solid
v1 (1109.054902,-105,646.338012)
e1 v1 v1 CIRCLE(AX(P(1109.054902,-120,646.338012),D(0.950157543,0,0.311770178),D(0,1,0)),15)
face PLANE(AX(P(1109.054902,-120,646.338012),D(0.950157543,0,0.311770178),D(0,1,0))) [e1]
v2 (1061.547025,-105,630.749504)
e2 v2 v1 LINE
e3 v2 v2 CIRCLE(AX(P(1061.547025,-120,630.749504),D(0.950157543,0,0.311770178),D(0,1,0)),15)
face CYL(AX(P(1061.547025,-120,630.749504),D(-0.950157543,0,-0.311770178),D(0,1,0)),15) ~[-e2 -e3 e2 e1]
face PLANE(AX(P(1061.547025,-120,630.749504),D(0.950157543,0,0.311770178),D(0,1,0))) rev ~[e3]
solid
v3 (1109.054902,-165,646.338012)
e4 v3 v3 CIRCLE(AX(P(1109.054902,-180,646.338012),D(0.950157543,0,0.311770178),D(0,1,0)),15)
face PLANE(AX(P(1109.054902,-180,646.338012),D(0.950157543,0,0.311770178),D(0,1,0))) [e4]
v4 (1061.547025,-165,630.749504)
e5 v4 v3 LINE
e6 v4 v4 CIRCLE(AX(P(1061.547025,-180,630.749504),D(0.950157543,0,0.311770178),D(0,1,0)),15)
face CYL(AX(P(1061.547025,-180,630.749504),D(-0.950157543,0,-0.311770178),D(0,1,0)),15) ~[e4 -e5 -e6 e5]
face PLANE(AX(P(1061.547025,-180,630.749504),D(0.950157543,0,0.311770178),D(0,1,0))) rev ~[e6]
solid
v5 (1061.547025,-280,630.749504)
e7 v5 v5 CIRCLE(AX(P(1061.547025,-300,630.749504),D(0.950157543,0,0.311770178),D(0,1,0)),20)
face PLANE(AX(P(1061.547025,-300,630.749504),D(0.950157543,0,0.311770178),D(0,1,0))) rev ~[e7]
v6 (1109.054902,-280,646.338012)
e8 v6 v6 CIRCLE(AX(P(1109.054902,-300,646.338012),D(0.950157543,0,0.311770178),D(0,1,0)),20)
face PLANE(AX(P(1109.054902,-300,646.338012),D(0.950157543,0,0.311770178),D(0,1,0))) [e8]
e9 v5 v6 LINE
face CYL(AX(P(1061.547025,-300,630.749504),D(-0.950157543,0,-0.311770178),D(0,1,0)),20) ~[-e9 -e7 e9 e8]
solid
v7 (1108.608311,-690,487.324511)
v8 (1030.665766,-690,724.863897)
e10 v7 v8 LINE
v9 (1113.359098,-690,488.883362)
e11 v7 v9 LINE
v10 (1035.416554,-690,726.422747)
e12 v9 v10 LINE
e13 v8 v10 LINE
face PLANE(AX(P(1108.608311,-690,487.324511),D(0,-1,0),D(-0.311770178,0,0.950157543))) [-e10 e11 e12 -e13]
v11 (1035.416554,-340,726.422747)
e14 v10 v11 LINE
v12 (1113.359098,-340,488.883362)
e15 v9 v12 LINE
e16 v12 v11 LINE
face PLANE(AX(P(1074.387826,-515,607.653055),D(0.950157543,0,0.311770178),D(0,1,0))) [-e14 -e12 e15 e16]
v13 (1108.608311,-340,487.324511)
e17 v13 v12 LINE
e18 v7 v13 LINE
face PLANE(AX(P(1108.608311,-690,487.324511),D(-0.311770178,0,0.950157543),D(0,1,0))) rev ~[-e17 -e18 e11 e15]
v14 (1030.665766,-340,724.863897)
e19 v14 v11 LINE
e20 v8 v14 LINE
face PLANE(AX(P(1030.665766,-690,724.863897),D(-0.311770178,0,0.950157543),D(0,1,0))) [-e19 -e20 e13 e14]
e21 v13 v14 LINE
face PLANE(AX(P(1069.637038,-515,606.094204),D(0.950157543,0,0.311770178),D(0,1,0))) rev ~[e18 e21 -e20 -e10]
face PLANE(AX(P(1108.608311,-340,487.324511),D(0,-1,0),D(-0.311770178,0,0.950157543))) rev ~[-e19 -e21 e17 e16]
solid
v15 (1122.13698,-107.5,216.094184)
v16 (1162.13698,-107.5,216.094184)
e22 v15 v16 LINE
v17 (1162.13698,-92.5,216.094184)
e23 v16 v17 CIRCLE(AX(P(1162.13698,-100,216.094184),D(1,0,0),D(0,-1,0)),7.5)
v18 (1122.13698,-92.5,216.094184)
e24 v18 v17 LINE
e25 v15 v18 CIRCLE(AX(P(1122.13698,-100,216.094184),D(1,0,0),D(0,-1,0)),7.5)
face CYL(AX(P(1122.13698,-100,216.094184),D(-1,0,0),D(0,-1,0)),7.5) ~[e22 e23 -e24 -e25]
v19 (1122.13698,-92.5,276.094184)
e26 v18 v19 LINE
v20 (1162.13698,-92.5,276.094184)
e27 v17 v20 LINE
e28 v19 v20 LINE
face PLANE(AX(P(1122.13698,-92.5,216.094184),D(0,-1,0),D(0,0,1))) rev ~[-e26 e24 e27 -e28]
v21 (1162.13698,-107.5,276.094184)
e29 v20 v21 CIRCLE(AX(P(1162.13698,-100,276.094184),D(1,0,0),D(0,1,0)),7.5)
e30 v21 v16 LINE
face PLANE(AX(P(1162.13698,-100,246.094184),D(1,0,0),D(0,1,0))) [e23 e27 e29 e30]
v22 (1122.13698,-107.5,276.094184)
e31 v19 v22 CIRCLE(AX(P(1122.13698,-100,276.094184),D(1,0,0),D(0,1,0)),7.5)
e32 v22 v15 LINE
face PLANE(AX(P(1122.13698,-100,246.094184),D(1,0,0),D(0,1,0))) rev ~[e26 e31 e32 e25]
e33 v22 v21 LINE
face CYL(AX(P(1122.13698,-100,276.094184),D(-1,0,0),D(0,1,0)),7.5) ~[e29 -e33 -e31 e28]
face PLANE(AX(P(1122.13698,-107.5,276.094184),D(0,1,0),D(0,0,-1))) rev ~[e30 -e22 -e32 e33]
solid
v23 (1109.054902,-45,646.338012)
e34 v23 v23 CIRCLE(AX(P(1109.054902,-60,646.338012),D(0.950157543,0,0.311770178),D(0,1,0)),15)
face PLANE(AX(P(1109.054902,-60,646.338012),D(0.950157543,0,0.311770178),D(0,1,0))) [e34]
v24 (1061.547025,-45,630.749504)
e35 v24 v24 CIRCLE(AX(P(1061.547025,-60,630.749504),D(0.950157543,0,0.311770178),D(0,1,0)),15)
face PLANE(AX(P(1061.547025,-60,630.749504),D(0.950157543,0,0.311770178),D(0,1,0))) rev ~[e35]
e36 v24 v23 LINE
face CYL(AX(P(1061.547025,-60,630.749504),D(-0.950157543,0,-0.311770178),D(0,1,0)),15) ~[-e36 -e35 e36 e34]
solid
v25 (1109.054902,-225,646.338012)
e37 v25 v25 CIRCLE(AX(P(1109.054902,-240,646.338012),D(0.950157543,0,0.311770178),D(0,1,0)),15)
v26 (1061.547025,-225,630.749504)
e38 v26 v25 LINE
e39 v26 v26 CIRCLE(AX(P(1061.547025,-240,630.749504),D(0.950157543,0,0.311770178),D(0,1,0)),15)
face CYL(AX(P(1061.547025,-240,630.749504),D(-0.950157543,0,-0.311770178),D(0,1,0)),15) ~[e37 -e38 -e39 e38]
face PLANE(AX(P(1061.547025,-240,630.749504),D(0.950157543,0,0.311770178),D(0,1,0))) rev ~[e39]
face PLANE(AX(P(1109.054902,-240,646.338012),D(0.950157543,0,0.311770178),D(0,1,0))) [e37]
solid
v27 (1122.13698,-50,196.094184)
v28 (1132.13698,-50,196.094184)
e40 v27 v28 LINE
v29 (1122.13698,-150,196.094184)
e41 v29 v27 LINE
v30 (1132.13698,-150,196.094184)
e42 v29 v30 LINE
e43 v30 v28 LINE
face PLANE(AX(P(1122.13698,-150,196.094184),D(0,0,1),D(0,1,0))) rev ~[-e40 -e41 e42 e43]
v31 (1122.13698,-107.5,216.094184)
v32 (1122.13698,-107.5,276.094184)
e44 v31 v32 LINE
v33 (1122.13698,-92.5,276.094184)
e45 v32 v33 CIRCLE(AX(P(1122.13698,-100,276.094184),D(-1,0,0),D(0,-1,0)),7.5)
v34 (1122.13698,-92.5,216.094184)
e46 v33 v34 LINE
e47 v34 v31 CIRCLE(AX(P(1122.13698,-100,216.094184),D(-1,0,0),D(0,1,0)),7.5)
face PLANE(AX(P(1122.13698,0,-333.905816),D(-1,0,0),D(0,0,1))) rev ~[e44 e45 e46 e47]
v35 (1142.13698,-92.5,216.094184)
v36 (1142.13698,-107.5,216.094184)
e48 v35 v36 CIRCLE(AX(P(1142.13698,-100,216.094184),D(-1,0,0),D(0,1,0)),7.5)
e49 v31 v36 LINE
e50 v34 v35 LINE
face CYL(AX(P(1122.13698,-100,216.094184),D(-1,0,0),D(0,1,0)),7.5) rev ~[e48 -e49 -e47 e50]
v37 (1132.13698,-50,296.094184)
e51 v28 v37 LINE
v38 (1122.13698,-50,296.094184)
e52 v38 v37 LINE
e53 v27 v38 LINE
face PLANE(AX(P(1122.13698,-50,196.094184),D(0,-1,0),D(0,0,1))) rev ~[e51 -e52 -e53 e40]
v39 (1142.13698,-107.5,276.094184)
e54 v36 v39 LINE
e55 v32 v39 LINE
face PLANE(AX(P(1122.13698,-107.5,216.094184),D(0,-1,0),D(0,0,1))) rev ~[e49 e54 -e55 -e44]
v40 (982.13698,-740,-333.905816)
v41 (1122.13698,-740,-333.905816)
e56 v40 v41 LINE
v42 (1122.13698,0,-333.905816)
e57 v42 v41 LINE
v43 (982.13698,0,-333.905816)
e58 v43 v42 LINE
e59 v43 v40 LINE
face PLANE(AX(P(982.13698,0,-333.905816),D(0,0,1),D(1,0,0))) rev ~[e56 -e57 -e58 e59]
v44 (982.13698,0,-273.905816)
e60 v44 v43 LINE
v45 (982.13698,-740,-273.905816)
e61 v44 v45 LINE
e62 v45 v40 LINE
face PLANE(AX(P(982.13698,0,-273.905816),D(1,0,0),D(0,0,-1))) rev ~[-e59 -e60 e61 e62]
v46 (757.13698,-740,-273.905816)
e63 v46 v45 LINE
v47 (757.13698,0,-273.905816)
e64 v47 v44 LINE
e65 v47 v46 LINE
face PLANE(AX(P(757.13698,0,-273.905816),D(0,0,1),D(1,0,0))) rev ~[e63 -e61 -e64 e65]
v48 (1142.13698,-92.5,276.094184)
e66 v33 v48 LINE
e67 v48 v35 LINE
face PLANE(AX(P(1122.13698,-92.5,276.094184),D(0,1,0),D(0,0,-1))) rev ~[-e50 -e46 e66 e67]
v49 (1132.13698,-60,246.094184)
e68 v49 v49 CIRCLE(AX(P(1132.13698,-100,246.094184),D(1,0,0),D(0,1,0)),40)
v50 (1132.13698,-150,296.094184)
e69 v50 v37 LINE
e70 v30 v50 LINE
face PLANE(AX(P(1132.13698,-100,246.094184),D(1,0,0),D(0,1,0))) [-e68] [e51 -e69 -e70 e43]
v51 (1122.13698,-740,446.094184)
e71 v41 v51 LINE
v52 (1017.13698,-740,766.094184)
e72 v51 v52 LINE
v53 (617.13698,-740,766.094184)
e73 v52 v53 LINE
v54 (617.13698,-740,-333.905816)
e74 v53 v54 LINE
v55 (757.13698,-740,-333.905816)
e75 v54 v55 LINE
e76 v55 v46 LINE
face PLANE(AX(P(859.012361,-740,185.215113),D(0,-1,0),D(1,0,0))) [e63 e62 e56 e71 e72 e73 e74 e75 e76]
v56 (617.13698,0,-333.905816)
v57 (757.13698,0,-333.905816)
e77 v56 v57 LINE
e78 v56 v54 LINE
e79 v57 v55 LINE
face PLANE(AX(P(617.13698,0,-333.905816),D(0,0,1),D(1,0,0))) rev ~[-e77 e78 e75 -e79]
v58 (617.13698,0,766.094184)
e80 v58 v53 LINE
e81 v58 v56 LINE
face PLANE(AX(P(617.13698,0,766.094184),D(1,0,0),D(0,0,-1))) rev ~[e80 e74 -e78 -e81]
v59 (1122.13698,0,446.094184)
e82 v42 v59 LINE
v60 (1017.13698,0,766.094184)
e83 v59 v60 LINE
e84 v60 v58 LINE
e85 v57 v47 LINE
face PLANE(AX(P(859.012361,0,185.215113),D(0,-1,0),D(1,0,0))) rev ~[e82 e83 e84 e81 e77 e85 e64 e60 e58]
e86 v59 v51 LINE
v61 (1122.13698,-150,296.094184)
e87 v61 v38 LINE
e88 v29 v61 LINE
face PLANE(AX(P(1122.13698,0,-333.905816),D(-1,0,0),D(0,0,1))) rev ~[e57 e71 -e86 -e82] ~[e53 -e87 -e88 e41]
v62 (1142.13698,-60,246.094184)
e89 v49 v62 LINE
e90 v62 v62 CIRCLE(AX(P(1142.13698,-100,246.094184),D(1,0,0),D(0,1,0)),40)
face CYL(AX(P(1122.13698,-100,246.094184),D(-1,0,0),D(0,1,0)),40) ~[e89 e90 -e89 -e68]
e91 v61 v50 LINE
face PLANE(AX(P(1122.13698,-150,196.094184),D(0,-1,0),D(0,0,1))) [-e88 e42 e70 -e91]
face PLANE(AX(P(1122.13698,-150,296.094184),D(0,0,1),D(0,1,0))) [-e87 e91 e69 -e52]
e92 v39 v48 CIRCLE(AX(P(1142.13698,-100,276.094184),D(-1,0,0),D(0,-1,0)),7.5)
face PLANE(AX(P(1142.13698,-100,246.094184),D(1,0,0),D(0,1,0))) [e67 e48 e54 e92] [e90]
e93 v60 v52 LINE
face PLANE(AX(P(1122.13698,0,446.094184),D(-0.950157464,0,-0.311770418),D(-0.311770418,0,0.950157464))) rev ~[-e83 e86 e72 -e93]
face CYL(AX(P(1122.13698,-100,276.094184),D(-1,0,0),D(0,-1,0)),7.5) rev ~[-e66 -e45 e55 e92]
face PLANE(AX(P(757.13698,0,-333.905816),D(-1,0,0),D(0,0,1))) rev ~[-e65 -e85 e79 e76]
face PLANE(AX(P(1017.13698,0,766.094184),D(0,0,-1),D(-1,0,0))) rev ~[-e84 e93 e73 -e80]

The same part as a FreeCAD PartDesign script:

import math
import FreeCAD as App
import Part
import Sketcher
from FreeCAD import Vector

doc = App.newDocument("Part")
body = doc.addObject("PartDesign::Body", "Body")

sketch1 = body.newObject("Sketcher::SketchObject", "Sketch")
sketch1.AttachmentSupport = (doc.getObject("XZ_Plane"), [""])
sketch1.MapMode = "FlatFace"
sketch1.addGeometry(Part.LineSegment(Vector(1017.13698, 766.094184, 0), Vector(617.13698, 766.094184, 0)), False)
sketch1.addGeometry(Part.LineSegment(Vector(617.13698, 766.094184, 0), Vector(617.13698, -333.905816, 0)), False)
sketch1.addGeometry(Part.LineSegment(Vector(617.13698, -333.905816, 0), Vector(757.13698, -333.905816, 0)), False)
sketch1.addGeometry(Part.LineSegment(Vector(757.13698, -333.905816, 0), Vector(757.13698, -273.905816, 0)), False)
sketch1.addGeometry(Part.LineSegment(Vector(757.13698, -273.905816, 0), Vector(982.13698, -273.905816, 0)), False)
sketch1.addGeometry(Part.LineSegment(Vector(982.13698, -273.905816, 0), Vector(982.13698, -333.905816, 0)), False)
sketch1.addGeometry(Part.LineSegment(Vector(982.13698, -333.905816, 0), Vector(1122.13698, -333.905816, 0)), False)
sketch1.addGeometry(Part.LineSegment(Vector(1122.13698, -333.905816, 0), Vector(1122.13698, 446.094184, 0)), False)
sketch1.addGeometry(Part.LineSegment(Vector(1122.13698, 446.094184, 0), Vector(1017.13698, 766.094184, 0)), False)
sketch1.addConstraint(Sketcher.Constraint("Coincident", 0, 2, 1, 1))
sketch1.addConstraint(Sketcher.Constraint("Coincident", 1, 2, 2, 1))
sketch1.addConstraint(Sketcher.Constraint("Coincident", 2, 2, 3, 1))
sketch1.addConstraint(Sketcher.Constraint("Coincident", 3, 2, 4, 1))
sketch1.addConstraint(Sketcher.Constraint("Coincident", 4, 2, 5, 1))
sketch1.addConstraint(Sketcher.Constraint("Coincident", 5, 2, 6, 1))
sketch1.addConstraint(Sketcher.Constraint("Coincident", 6, 2, 7, 1))
sketch1.addConstraint(Sketcher.Constraint("Coincident", 7, 2, 8, 1))
sketch1.addConstraint(Sketcher.Constraint("Coincident", 8, 2, 0, 1))
sketch1.addConstraint(Sketcher.Constraint("Horizontal", 0))
sketch1.addConstraint(Sketcher.Constraint("Vertical", 1))
sketch1.addConstraint(Sketcher.Constraint("Horizontal", 2))
sketch1.addConstraint(Sketcher.Constraint("Vertical", 3))
sketch1.addConstraint(Sketcher.Constraint("Horizontal", 4))
sketch1.addConstraint(Sketcher.Constraint("Vertical", 5))
sketch1.addConstraint(Sketcher.Constraint("Horizontal", 6))
sketch1.addConstraint(Sketcher.Constraint("Vertical", 7))
sketch1.addConstraint(Sketcher.Constraint("Horizontal", 2, 2, 5, 2))
sketch1.addConstraint(Sketcher.Constraint("Equal", 2, 6))
sketch1.addConstraint(Sketcher.Constraint("DistanceX", 0, 2, 0, 1, 400.0))
sketch1.addConstraint(Sketcher.Constraint("DistanceX", 2, 1, 2, 2, 140.0))
sketch1.addConstraint(Sketcher.Constraint("DistanceX", 4, 1, 4, 2, 225.0))
sketch1.addConstraint(Sketcher.Constraint("DistanceY", 1, 2, 1, 1, 1100.0))
sketch1.addConstraint(Sketcher.Constraint("DistanceY", 3, 1, 3, 2, 60.0))
sketch1.addConstraint(Sketcher.Constraint("DistanceY", 7, 1, 7, 2, 780.0))
sketch1.addConstraint(Sketcher.Constraint("DistanceX", -1, 1, 0, 2, 617.13698))
sketch1.addConstraint(Sketcher.Constraint("DistanceY", -1, 1, 0, 2, 766.094184))
pad1 = body.newObject("PartDesign::Pad", "Pad")
pad1.Profile = sketch1
pad1.Length = 740

sketch2 = body.newObject("Sketcher::SketchObject", "Sketch001")
sketch2.AttachmentSupport = (doc.getObject("YZ_Plane"), [""])
sketch2.MapMode = "FlatFace"
sketch2.AttachmentOffset = App.Placement(Vector(0, 0, 1122.13698), App.Rotation())
sketch2.addGeometry(Part.LineSegment(Vector(-150, 296.094184, 0), Vector(-150, 196.094184, 0)), False)
sketch2.addGeometry(Part.LineSegment(Vector(-150, 196.094184, 0), Vector(-50, 196.094184, 0)), False)
sketch2.addGeometry(Part.LineSegment(Vector(-50, 196.094184, 0), Vector(-50, 296.094184, 0)), False)
sketch2.addGeometry(Part.LineSegment(Vector(-50, 296.094184, 0), Vector(-150, 296.094184, 0)), False)
sketch2.addGeometry(Part.Circle(Vector(-100, 246.094184, 0), Vector(0, 0, 1), 40), False)
sketch2.addConstraint(Sketcher.Constraint("Coincident", 0, 2, 1, 1))
sketch2.addConstraint(Sketcher.Constraint("Coincident", 1, 2, 2, 1))
sketch2.addConstraint(Sketcher.Constraint("Coincident", 2, 2, 3, 1))
sketch2.addConstraint(Sketcher.Constraint("Coincident", 3, 2, 0, 1))
sketch2.addConstraint(Sketcher.Constraint("Vertical", 0))
sketch2.addConstraint(Sketcher.Constraint("Horizontal", 1))
sketch2.addConstraint(Sketcher.Constraint("Vertical", 2))
sketch2.addConstraint(Sketcher.Constraint("Horizontal", 3))
sketch2.addConstraint(Sketcher.Constraint("Equal", 3, 0))
sketch2.addConstraint(Sketcher.Constraint("Diameter", 4, 80.0))
sketch2.addConstraint(Sketcher.Constraint("DistanceX", 1, 1, 1, 2, 100.0))
sketch2.addConstraint(Sketcher.Constraint("DistanceX", 4, 3, -1, 1, 100.0))
sketch2.addConstraint(Sketcher.Constraint("DistanceX", 0, 2, -1, 1, 150.0))
sketch2.addConstraint(Sketcher.Constraint("DistanceY", 0, 2, 4, 3, 50.0))
sketch2.addConstraint(Sketcher.Constraint("DistanceY", -1, 1, 4, 3, 246.094184))
pad2 = body.newObject("PartDesign::Pad", "Pad001")
pad2.Profile = sketch2
pad2.Length = 10

sketch3 = body.newObject("Sketcher::SketchObject", "Sketch002")
sketch3.AttachmentSupport = (doc.getObject("YZ_Plane"), [""])
sketch3.MapMode = "FlatFace"
sketch3.AttachmentOffset = App.Placement(Vector(0, 0, 1122.13698), App.Rotation())
sketch3.addGeometry(Part.Circle(Vector(-100, 246.094184, 0), Vector(0, 0, 1), 40), False)
sketch3.addGeometry(Part.ArcOfCircle(Part.Circle(Vector(-100, 216.094184, 0), Vector(0, 0, 1), 7.5), math.radians(180), math.radians(360)), False)
sketch3.addGeometry(Part.LineSegment(Vector(-107.5, 216.094184, 0), Vector(-107.5, 276.094184, 0)), False)
sketch3.addGeometry(Part.ArcOfCircle(Part.Circle(Vector(-100, 276.094184, 0), Vector(0, 0, 1), 7.5), math.radians(0), math.radians(180)), False)
sketch3.addGeometry(Part.LineSegment(Vector(-92.5, 276.094184, 0), Vector(-92.5, 216.094184, 0)), False)
sketch3.addConstraint(Sketcher.Constraint("Tangent", 1, 1, 2, 1))
sketch3.addConstraint(Sketcher.Constraint("Tangent", 2, 2, 3, 2))
sketch3.addConstraint(Sketcher.Constraint("Tangent", 3, 1, 4, 1))
sketch3.addConstraint(Sketcher.Constraint("Tangent", 4, 2, 1, 2))
sketch3.addConstraint(Sketcher.Constraint("Vertical", 2))
sketch3.addConstraint(Sketcher.Constraint("Vertical", 4))
sketch3.addConstraint(Sketcher.Constraint("Vertical", 0, 3, 1, 3))
sketch3.addConstraint(Sketcher.Constraint("Diameter", 0, 80.0))
sketch3.addConstraint(Sketcher.Constraint("Radius", 1, 7.5))
sketch3.addConstraint(Sketcher.Constraint("DistanceY", 2, 1, 2, 2, 60.0))
sketch3.addConstraint(Sketcher.Constraint("DistanceX", 0, 3, -1, 1, 100.0))
sketch3.addConstraint(Sketcher.Constraint("DistanceY", 1, 3, 0, 3, 30.0))
sketch3.addConstraint(Sketcher.Constraint("DistanceY", -1, 1, 0, 3, 246.094184))
pad3 = body.newObject("PartDesign::Pad", "Pad002")
pad3.Profile = sketch3
pad3.Length = 20
body2 = doc.addObject("PartDesign::Body", "Body001")

sketch4 = body2.newObject("Sketcher::SketchObject", "Sketch003")
sketch4.AttachmentSupport = (doc.getObject("YZ_Plane001"), [""])
sketch4.MapMode = "FlatFace"
sketch4.AttachmentOffset = App.Placement(Vector(0, 0, 1122.13698), App.Rotation())
sketch4.addGeometry(Part.ArcOfCircle(Part.Circle(Vector(-100, 276.094184, 0), Vector(0, 0, 1), 7.5), math.radians(0), math.radians(180)), False)
sketch4.addGeometry(Part.LineSegment(Vector(-107.5, 276.094184, 0), Vector(-107.5, 216.094184, 0)), False)
sketch4.addGeometry(Part.ArcOfCircle(Part.Circle(Vector(-100, 216.094184, 0), Vector(0, 0, 1), 7.5), math.radians(180), math.radians(360)), False)
sketch4.addGeometry(Part.LineSegment(Vector(-92.5, 216.094184, 0), Vector(-92.5, 276.094184, 0)), False)
sketch4.addConstraint(Sketcher.Constraint("Tangent", 0, 2, 1, 1))
sketch4.addConstraint(Sketcher.Constraint("Tangent", 1, 2, 2, 1))
sketch4.addConstraint(Sketcher.Constraint("Tangent", 2, 2, 3, 1))
sketch4.addConstraint(Sketcher.Constraint("Tangent", 3, 2, 0, 1))
sketch4.addConstraint(Sketcher.Constraint("Vertical", 1))
sketch4.addConstraint(Sketcher.Constraint("Vertical", 3))
sketch4.addConstraint(Sketcher.Constraint("Radius", 0, 7.5))
sketch4.addConstraint(Sketcher.Constraint("DistanceY", 1, 2, 1, 1, 60.0))
sketch4.addConstraint(Sketcher.Constraint("DistanceX", 0, 3, -1, 1, 100.0))
sketch4.addConstraint(Sketcher.Constraint("DistanceY", -1, 1, 0, 3, 276.094184))
pad4 = body2.newObject("PartDesign::Pad", "Pad003")
pad4.Profile = sketch4
pad4.Length = 40
body3 = doc.addObject("PartDesign::Body", "Body002")

sketch5 = body3.newObject("Sketcher::SketchObject", "Sketch004")
sketch5.Placement = App.Placement(Vector(1145.211297, 0, 375.772457), App.Rotation(Vector(0, 1, 0), Vector(-0.311770178, 0, 0.950157543), Vector(0.950157543, 0, 0.311770178), "ZXY"))
sketch5.addGeometry(Part.LineSegment(Vector(-690, 367.403745, 0), Vector(-690, 117.403745, 0)), False)
sketch5.addGeometry(Part.LineSegment(Vector(-690, 117.403745, 0), Vector(-340, 117.403745, 0)), False)
sketch5.addGeometry(Part.LineSegment(Vector(-340, 117.403745, 0), Vector(-340, 367.403745, 0)), False)
sketch5.addGeometry(Part.LineSegment(Vector(-340, 367.403745, 0), Vector(-690, 367.403745, 0)), False)
sketch5.addConstraint(Sketcher.Constraint("Coincident", 0, 2, 1, 1))
sketch5.addConstraint(Sketcher.Constraint("Coincident", 1, 2, 2, 1))
sketch5.addConstraint(Sketcher.Constraint("Coincident", 2, 2, 3, 1))
sketch5.addConstraint(Sketcher.Constraint("Coincident", 3, 2, 0, 1))
sketch5.addConstraint(Sketcher.Constraint("Vertical", 0))
sketch5.addConstraint(Sketcher.Constraint("Horizontal", 1))
sketch5.addConstraint(Sketcher.Constraint("Vertical", 2))
sketch5.addConstraint(Sketcher.Constraint("Horizontal", 3))
sketch5.addConstraint(Sketcher.Constraint("DistanceX", 1, 1, 1, 2, 350.0))
sketch5.addConstraint(Sketcher.Constraint("DistanceY", 0, 2, 0, 1, 250.0))
sketch5.addConstraint(Sketcher.Constraint("DistanceX", 0, 2, -1, 1, 690.0))
sketch5.addConstraint(Sketcher.Constraint("DistanceY", -1, 1, 0, 2, 117.403745))
pad5 = body3.newObject("PartDesign::Pad", "Pad004")
pad5.Profile = sketch5
pad5.Length = 5
body4 = doc.addObject("PartDesign::Body", "Body003")
body4.AllowCompound = True

sketch6 = body4.newObject("Sketcher::SketchObject", "Sketch005")
sketch6.Placement = App.Placement(Vector(1145.211297, 0, 375.772457), App.Rotation(Vector(0, 1, 0), Vector(-0.311770178, 0, 0.950157543), Vector(0.950157543, 0, 0.311770178), "ZXY"))
sketch6.addGeometry(Part.Circle(Vector(-300, 268.352389, 0), Vector(0, 0, 1), 20), False)
sketch6.addGeometry(Part.Circle(Vector(-240, 268.352389, 0), Vector(0, 0, 1), 15), False)
sketch6.addGeometry(Part.Circle(Vector(-180, 268.352389, 0), Vector(0, 0, 1), 15), False)
sketch6.addGeometry(Part.Circle(Vector(-120, 268.352389, 0), Vector(0, 0, 1), 15), False)
sketch6.addGeometry(Part.Circle(Vector(-60, 268.352389, 0), Vector(0, 0, 1), 15), False)
sketch6.addConstraint(Sketcher.Constraint("Equal", 1, 2))
sketch6.addConstraint(Sketcher.Constraint("Equal", 2, 3))
sketch6.addConstraint(Sketcher.Constraint("Equal", 3, 4))
sketch6.addConstraint(Sketcher.Constraint("Horizontal", 0, 3, 1, 3))
sketch6.addConstraint(Sketcher.Constraint("Horizontal", 1, 3, 2, 3))
sketch6.addConstraint(Sketcher.Constraint("Horizontal", 2, 3, 3, 3))
sketch6.addConstraint(Sketcher.Constraint("Horizontal", 3, 3, 4, 3))
sketch6.addConstraint(Sketcher.Constraint("Diameter", 0, 40.0))
sketch6.addConstraint(Sketcher.Constraint("Diameter", 1, 30.0))
sketch6.addConstraint(Sketcher.Constraint("DistanceX", 0, 3, -1, 1, 300.0))
sketch6.addConstraint(Sketcher.Constraint("DistanceX", 1, 3, -1, 1, 240.0))
sketch6.addConstraint(Sketcher.Constraint("DistanceX", 2, 3, -1, 1, 180.0))
sketch6.addConstraint(Sketcher.Constraint("DistanceX", 3, 3, -1, 1, 120.0))
sketch6.addConstraint(Sketcher.Constraint("DistanceX", 4, 3, -1, 1, 60.0))
sketch6.addConstraint(Sketcher.Constraint("DistanceY", -1, 1, 0, 3, 268.352389))
pad6 = body4.newObject("PartDesign::Pad", "Pad005")
pad6.Profile = sketch6
pad6.Length = 50

doc.recompute()
